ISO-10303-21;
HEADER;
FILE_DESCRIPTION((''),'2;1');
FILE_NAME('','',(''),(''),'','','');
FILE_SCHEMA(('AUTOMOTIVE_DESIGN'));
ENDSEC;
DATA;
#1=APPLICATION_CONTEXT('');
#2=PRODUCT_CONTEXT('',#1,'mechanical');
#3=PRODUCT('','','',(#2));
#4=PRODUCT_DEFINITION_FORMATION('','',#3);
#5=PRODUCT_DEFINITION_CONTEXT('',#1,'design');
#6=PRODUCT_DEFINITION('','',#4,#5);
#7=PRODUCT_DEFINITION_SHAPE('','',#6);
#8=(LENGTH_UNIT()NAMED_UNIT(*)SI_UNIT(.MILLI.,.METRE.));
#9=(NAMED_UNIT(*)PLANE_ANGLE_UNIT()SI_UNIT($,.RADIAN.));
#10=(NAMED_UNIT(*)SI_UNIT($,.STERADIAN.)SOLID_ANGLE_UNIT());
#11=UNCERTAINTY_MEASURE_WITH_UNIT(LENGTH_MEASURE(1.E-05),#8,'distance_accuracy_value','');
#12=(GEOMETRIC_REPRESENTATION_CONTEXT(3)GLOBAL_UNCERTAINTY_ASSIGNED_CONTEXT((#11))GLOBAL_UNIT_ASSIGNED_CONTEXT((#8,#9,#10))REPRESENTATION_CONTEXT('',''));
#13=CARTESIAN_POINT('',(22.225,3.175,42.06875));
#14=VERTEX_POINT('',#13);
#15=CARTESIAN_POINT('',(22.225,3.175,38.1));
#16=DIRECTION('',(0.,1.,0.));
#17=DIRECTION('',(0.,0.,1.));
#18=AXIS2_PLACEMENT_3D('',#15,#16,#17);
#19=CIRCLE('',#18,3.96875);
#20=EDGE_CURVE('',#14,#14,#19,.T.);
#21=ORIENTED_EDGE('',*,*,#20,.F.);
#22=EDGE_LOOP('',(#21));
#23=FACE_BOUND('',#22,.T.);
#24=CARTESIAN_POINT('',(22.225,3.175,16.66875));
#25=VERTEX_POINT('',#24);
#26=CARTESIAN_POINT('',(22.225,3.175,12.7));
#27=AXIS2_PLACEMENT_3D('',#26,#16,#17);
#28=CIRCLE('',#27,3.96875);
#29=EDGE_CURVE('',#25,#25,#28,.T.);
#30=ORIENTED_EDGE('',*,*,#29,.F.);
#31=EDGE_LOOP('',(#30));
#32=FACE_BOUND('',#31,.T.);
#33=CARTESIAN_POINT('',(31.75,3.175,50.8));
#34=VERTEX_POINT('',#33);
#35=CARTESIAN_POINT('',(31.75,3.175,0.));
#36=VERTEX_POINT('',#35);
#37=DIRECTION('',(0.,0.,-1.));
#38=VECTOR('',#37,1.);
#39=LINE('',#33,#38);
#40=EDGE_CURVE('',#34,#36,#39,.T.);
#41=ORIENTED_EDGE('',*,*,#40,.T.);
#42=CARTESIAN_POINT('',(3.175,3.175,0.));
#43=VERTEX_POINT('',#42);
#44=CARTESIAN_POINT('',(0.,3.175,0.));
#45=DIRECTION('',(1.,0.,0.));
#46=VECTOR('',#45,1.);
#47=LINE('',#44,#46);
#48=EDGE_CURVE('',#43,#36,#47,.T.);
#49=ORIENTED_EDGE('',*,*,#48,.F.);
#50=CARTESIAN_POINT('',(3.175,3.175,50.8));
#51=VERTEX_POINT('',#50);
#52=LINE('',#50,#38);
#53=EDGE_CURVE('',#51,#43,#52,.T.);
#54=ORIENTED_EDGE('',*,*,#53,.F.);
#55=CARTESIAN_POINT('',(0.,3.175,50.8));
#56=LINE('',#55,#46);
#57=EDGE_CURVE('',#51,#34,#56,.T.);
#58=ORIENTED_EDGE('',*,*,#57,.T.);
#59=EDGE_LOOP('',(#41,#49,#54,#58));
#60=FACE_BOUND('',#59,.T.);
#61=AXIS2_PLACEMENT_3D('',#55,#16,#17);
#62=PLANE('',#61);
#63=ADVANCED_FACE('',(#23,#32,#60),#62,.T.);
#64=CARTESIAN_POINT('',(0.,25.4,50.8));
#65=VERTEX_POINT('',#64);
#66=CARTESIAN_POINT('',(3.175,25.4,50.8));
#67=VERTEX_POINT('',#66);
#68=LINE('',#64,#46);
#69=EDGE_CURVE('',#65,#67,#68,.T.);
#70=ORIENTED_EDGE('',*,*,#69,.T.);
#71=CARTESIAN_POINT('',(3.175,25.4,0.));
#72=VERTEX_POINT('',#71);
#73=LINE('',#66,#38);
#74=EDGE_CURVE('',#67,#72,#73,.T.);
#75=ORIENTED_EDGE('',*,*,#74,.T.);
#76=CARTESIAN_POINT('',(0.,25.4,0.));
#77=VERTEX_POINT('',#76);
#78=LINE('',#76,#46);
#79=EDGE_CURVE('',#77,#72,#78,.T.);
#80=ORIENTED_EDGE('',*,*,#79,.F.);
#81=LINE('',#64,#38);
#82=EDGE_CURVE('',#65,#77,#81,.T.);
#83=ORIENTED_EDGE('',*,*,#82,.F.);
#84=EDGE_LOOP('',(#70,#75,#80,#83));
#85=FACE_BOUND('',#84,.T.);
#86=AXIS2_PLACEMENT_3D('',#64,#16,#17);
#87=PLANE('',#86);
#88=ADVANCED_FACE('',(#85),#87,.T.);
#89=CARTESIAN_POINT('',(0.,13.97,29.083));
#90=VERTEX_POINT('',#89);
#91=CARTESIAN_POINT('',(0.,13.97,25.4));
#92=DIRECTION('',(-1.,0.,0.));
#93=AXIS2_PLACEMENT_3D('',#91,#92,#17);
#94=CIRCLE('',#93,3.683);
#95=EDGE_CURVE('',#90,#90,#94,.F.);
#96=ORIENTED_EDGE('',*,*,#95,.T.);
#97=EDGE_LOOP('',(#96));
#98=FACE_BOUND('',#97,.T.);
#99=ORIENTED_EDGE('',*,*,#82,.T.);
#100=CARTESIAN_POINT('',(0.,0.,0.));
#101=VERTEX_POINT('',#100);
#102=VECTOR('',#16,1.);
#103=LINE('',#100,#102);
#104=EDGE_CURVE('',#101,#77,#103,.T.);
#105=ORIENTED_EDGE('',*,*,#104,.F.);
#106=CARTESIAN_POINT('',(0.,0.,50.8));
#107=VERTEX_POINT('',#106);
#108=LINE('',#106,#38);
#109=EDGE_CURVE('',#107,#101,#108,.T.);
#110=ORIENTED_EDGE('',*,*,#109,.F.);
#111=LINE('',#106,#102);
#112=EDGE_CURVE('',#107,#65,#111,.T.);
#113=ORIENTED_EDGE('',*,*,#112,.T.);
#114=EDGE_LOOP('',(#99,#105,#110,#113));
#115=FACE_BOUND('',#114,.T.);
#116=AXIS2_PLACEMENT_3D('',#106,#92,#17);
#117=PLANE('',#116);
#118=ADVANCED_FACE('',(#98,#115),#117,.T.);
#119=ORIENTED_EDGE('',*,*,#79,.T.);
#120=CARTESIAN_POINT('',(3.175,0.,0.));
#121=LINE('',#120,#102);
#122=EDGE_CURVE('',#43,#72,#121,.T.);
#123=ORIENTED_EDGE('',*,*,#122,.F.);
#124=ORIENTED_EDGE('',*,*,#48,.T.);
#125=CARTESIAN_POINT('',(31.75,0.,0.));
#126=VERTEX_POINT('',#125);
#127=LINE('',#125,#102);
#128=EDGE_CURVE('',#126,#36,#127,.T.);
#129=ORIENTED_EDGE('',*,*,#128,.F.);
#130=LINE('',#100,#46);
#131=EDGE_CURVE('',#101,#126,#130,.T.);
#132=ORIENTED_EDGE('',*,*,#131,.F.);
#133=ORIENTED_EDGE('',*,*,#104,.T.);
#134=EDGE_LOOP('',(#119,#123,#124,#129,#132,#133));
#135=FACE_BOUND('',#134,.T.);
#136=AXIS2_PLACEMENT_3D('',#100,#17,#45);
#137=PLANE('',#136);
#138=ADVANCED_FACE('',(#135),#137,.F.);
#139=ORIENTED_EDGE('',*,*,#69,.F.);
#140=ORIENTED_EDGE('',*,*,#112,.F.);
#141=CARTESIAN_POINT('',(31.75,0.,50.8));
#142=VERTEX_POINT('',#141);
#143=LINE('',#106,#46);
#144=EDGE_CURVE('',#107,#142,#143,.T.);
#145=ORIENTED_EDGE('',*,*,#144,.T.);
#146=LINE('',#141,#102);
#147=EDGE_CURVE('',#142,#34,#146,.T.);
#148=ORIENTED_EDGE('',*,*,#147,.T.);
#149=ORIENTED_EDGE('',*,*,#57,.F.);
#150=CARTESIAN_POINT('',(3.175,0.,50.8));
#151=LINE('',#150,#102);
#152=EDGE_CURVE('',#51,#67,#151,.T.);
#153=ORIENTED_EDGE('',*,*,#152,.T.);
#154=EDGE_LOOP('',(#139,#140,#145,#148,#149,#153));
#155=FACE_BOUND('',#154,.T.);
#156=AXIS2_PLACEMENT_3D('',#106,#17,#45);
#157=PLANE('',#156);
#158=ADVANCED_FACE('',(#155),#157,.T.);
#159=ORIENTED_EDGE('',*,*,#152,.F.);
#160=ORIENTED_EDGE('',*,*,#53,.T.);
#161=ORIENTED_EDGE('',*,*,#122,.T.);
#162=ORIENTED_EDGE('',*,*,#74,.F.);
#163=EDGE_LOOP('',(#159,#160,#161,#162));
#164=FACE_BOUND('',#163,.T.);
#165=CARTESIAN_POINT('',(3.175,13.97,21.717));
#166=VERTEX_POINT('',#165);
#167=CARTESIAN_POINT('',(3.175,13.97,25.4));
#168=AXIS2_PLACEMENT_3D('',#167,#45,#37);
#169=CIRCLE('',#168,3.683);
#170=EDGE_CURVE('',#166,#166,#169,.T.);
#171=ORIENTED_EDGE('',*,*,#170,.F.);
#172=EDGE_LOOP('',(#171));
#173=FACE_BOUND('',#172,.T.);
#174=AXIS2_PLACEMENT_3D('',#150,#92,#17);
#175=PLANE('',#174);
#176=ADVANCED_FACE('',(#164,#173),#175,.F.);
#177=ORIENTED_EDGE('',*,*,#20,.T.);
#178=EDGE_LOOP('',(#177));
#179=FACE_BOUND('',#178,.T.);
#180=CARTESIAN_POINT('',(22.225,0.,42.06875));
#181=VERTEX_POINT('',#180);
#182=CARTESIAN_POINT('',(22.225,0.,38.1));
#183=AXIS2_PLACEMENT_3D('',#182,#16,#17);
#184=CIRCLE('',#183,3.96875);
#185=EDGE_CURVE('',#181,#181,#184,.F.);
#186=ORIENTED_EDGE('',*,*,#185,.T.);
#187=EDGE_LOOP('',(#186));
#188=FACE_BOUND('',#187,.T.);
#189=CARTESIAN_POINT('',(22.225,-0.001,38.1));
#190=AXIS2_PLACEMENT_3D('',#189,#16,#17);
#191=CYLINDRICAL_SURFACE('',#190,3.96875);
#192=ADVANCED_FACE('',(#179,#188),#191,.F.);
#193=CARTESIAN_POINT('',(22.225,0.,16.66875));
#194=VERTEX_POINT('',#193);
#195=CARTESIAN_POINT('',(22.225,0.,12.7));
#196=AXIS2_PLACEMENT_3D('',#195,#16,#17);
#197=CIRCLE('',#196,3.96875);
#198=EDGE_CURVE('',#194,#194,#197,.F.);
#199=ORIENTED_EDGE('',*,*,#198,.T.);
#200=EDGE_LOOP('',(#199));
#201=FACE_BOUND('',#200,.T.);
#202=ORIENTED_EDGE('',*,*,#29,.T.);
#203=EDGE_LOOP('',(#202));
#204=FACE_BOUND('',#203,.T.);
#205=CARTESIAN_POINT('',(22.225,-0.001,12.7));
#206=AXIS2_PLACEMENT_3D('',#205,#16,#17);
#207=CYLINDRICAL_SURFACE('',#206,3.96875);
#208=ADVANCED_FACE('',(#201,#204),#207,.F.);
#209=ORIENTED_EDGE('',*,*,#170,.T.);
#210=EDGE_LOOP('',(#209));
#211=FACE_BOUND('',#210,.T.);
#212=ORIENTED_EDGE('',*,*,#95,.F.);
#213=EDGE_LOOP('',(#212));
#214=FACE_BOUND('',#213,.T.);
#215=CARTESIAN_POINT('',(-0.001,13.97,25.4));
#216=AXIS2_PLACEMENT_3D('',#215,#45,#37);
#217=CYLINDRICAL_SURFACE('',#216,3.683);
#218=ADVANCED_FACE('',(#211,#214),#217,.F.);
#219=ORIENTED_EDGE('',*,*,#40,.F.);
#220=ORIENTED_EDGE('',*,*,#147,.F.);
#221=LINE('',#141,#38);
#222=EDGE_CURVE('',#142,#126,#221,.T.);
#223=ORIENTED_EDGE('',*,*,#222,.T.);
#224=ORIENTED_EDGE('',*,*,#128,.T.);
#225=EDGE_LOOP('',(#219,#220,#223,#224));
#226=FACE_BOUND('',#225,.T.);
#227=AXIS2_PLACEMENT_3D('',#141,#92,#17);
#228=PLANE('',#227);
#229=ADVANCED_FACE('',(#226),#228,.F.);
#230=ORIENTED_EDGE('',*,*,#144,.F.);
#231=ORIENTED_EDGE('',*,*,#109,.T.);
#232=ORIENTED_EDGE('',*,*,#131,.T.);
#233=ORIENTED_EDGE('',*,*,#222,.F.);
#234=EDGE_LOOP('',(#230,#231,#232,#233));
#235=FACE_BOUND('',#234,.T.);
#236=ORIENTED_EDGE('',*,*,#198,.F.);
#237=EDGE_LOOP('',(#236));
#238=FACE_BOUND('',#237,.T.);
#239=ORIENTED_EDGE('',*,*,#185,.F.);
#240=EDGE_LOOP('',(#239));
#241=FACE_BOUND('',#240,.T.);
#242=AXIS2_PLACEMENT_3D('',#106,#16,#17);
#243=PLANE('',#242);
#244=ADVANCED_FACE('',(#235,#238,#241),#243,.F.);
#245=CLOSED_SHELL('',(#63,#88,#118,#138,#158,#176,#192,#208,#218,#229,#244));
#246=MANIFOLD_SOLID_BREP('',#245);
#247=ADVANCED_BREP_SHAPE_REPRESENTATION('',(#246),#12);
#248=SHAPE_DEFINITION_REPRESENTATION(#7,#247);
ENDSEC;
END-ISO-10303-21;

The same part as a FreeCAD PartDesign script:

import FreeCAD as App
import Part
import Sketcher
from FreeCAD import Vector
Q = App.Units.Quantity


def add_polygon(sketch, points):
    """Adds a closed chain of lines whose ends are joined by coincident constraints."""
    first, n = sketch.GeometryCount, len(points)
    for a, b in zip(points, points[1:] + points[:1]):
        sketch.addGeometry(Part.LineSegment(App.Vector(*a, 0), App.Vector(*b, 0)), False)
    for i in range(n):
        sketch.addConstraint(Sketcher.Constraint("Coincident", first + i, 2, first + (i + 1) % n, 1))

doc = App.newDocument("Part")
params = doc.addObject("Spreadsheet::Sheet", "Params")
for row, (alias, value) in enumerate([
    ("sketch1_height", "1 in"),
    ("sketch1_width", "1.25 in"),
    ("sketch1_width2", "1.125 in"),
    ("pad1_length", "2 in"),
    ("sketch2_diameter", "0.29 in"),
    ("sketch3_diameter", "0.3125 in"),
    ("sketch4_diameter", "0.3125 in"),
], start=1):
    params.set(f"A{row}", alias)
    params.set(f"B{row}", "=" + value)
    params.setAlias(f"B{row}", alias)

body = doc.addObject("PartDesign::Body", "Body")

# Sketch on XY plane
sketch1 = doc.addObject("Sketcher::SketchObject", "Sketch")
body.addObject(sketch1)
sketch1.AttachmentSupport = (doc.XY_Plane, [""])
sketch1.MapMode = "FlatFace"
add_polygon(sketch1, [(0, 25.4), (0, 0), (31.8, 0), (31.8, 3.2), (3.2, 3.2), (3.2, 25.4)])  # lines 0-5
sketch1.addConstraint([
    Sketcher.Constraint("Vertical", 0),
    Sketcher.Constraint("Horizontal", 1),
    Sketcher.Constraint("Vertical", 2),
    Sketcher.Constraint("Horizontal", 3),
    Sketcher.Constraint("Vertical", 4),
    Sketcher.Constraint("Horizontal", 5),
    Sketcher.Constraint("Coincident", 0, 2, -1, 1),
    Sketcher.Constraint("Equal", 5, 2),
    Sketcher.Constraint("DistanceY", 0, 2, 0, 1, Q("1 in")),
    Sketcher.Constraint("DistanceX", 1, 1, 1, 2, Q("1.25 in")),
    Sketcher.Constraint("DistanceX", 3, 2, 3, 1, Q("1.125 in")),
])
sketch1.setExpression("Constraints[14]", "Params.sketch1_height")
sketch1.setExpression("Constraints[15]", "Params.sketch1_width")
sketch1.setExpression("Constraints[16]", "Params.sketch1_width2")
pad1 = doc.addObject("PartDesign::Pad", "Pad")
body.addObject(pad1)
pad1.Profile = sketch1
pad1.setExpression("Length", "Params.pad1_length")

# Sketch on YZ plane
sketch2 = doc.addObject("Sketcher::SketchObject", "Sketch001")
body.addObject(sketch2)
sketch2.AttachmentSupport = (doc.YZ_Plane, [""])
sketch2.MapMode = "FlatFace"
sketch2.AttachmentOffset = App.Placement(Vector(0, 0, 0.125 * 25.4), App.Rotation())
sketch2.addGeometry(Part.Circle(Vector(14, 25.4, 0), Vector(0, 0, 1), 3.7), False)
sketch2.addConstraint([
    Sketcher.Constraint("Diameter", 0, Q("0.29 in")),
    Sketcher.Constraint("DistanceY", -1, 1, 0, 3, Q("1 in")),
    Sketcher.Constraint("DistanceX", -1, 1, 0, 3, Q("0.55 in")),
])
sketch2.setExpression("Constraints[0]", "Params.sketch2_diameter")
pocket1 = doc.addObject("PartDesign::Pocket", "Pocket")
body.addObject(pocket1)
pocket1.Profile = sketch2
pocket1.Type = "UpToFirst"

# Sketch on XZ plane
sketch3 = doc.addObject("Sketcher::SketchObject", "Sketch002")
body.addObject(sketch3)
sketch3.AttachmentSupport = (doc.XZ_Plane, [""])
sketch3.MapMode = "FlatFace"
sketch3.AttachmentOffset = App.Placement(Vector(0, 0, -0.125 * 25.4), App.Rotation())
sketch3.addGeometry(Part.Circle(Vector(22.2, 38.1, 0), Vector(0, 0, 1), 4), False)
sketch3.addConstraint([
    Sketcher.Constraint("Diameter", 0, Q("0.3125 in")),
    Sketcher.Constraint("DistanceY", -1, 1, 0, 3, Q("1.5 in")),
    Sketcher.Constraint("DistanceX", -1, 1, 0, 3, Q("0.875 in")),
])
sketch3.setExpression("Constraints[0]", "Params.sketch3_diameter")
pocket2 = doc.addObject("PartDesign::Pocket", "Pocket001")
body.addObject(pocket2)
pocket2.Profile = sketch3
pocket2.Type = "UpToFirst"
pocket2.Reversed = True

# Sketch on XZ plane
sketch4 = doc.addObject("Sketcher::SketchObject", "Sketch003")
body.addObject(sketch4)
sketch4.AttachmentSupport = (doc.XZ_Plane, [""])
sketch4.MapMode = "FlatFace"
sketch4.AttachmentOffset = App.Placement(Vector(0, 0, -0.125 * 25.4), App.Rotation())
sketch4.addGeometry(Part.Circle(Vector(22.2, 12.7, 0), Vector(0, 0, 1), 4), False)
sketch4.addConstraint([
    Sketcher.Constraint("Diameter", 0, Q("0.3125 in")),
    Sketcher.Constraint("DistanceY", -1, 1, 0, 3, Q("0.5 in")),
    Sketcher.Constraint("DistanceX", -1, 1, 0, 3, Q("0.875 in")),
])
sketch4.setExpression("Constraints[0]", "Params.sketch4_diameter")
pocket3 = doc.addObject("PartDesign::Pocket", "Pocket002")
body.addObject(pocket3)
pocket3.Profile = sketch4
pocket3.Type = "UpToFirst"
pocket3.Reversed = True

doc.recompute()
